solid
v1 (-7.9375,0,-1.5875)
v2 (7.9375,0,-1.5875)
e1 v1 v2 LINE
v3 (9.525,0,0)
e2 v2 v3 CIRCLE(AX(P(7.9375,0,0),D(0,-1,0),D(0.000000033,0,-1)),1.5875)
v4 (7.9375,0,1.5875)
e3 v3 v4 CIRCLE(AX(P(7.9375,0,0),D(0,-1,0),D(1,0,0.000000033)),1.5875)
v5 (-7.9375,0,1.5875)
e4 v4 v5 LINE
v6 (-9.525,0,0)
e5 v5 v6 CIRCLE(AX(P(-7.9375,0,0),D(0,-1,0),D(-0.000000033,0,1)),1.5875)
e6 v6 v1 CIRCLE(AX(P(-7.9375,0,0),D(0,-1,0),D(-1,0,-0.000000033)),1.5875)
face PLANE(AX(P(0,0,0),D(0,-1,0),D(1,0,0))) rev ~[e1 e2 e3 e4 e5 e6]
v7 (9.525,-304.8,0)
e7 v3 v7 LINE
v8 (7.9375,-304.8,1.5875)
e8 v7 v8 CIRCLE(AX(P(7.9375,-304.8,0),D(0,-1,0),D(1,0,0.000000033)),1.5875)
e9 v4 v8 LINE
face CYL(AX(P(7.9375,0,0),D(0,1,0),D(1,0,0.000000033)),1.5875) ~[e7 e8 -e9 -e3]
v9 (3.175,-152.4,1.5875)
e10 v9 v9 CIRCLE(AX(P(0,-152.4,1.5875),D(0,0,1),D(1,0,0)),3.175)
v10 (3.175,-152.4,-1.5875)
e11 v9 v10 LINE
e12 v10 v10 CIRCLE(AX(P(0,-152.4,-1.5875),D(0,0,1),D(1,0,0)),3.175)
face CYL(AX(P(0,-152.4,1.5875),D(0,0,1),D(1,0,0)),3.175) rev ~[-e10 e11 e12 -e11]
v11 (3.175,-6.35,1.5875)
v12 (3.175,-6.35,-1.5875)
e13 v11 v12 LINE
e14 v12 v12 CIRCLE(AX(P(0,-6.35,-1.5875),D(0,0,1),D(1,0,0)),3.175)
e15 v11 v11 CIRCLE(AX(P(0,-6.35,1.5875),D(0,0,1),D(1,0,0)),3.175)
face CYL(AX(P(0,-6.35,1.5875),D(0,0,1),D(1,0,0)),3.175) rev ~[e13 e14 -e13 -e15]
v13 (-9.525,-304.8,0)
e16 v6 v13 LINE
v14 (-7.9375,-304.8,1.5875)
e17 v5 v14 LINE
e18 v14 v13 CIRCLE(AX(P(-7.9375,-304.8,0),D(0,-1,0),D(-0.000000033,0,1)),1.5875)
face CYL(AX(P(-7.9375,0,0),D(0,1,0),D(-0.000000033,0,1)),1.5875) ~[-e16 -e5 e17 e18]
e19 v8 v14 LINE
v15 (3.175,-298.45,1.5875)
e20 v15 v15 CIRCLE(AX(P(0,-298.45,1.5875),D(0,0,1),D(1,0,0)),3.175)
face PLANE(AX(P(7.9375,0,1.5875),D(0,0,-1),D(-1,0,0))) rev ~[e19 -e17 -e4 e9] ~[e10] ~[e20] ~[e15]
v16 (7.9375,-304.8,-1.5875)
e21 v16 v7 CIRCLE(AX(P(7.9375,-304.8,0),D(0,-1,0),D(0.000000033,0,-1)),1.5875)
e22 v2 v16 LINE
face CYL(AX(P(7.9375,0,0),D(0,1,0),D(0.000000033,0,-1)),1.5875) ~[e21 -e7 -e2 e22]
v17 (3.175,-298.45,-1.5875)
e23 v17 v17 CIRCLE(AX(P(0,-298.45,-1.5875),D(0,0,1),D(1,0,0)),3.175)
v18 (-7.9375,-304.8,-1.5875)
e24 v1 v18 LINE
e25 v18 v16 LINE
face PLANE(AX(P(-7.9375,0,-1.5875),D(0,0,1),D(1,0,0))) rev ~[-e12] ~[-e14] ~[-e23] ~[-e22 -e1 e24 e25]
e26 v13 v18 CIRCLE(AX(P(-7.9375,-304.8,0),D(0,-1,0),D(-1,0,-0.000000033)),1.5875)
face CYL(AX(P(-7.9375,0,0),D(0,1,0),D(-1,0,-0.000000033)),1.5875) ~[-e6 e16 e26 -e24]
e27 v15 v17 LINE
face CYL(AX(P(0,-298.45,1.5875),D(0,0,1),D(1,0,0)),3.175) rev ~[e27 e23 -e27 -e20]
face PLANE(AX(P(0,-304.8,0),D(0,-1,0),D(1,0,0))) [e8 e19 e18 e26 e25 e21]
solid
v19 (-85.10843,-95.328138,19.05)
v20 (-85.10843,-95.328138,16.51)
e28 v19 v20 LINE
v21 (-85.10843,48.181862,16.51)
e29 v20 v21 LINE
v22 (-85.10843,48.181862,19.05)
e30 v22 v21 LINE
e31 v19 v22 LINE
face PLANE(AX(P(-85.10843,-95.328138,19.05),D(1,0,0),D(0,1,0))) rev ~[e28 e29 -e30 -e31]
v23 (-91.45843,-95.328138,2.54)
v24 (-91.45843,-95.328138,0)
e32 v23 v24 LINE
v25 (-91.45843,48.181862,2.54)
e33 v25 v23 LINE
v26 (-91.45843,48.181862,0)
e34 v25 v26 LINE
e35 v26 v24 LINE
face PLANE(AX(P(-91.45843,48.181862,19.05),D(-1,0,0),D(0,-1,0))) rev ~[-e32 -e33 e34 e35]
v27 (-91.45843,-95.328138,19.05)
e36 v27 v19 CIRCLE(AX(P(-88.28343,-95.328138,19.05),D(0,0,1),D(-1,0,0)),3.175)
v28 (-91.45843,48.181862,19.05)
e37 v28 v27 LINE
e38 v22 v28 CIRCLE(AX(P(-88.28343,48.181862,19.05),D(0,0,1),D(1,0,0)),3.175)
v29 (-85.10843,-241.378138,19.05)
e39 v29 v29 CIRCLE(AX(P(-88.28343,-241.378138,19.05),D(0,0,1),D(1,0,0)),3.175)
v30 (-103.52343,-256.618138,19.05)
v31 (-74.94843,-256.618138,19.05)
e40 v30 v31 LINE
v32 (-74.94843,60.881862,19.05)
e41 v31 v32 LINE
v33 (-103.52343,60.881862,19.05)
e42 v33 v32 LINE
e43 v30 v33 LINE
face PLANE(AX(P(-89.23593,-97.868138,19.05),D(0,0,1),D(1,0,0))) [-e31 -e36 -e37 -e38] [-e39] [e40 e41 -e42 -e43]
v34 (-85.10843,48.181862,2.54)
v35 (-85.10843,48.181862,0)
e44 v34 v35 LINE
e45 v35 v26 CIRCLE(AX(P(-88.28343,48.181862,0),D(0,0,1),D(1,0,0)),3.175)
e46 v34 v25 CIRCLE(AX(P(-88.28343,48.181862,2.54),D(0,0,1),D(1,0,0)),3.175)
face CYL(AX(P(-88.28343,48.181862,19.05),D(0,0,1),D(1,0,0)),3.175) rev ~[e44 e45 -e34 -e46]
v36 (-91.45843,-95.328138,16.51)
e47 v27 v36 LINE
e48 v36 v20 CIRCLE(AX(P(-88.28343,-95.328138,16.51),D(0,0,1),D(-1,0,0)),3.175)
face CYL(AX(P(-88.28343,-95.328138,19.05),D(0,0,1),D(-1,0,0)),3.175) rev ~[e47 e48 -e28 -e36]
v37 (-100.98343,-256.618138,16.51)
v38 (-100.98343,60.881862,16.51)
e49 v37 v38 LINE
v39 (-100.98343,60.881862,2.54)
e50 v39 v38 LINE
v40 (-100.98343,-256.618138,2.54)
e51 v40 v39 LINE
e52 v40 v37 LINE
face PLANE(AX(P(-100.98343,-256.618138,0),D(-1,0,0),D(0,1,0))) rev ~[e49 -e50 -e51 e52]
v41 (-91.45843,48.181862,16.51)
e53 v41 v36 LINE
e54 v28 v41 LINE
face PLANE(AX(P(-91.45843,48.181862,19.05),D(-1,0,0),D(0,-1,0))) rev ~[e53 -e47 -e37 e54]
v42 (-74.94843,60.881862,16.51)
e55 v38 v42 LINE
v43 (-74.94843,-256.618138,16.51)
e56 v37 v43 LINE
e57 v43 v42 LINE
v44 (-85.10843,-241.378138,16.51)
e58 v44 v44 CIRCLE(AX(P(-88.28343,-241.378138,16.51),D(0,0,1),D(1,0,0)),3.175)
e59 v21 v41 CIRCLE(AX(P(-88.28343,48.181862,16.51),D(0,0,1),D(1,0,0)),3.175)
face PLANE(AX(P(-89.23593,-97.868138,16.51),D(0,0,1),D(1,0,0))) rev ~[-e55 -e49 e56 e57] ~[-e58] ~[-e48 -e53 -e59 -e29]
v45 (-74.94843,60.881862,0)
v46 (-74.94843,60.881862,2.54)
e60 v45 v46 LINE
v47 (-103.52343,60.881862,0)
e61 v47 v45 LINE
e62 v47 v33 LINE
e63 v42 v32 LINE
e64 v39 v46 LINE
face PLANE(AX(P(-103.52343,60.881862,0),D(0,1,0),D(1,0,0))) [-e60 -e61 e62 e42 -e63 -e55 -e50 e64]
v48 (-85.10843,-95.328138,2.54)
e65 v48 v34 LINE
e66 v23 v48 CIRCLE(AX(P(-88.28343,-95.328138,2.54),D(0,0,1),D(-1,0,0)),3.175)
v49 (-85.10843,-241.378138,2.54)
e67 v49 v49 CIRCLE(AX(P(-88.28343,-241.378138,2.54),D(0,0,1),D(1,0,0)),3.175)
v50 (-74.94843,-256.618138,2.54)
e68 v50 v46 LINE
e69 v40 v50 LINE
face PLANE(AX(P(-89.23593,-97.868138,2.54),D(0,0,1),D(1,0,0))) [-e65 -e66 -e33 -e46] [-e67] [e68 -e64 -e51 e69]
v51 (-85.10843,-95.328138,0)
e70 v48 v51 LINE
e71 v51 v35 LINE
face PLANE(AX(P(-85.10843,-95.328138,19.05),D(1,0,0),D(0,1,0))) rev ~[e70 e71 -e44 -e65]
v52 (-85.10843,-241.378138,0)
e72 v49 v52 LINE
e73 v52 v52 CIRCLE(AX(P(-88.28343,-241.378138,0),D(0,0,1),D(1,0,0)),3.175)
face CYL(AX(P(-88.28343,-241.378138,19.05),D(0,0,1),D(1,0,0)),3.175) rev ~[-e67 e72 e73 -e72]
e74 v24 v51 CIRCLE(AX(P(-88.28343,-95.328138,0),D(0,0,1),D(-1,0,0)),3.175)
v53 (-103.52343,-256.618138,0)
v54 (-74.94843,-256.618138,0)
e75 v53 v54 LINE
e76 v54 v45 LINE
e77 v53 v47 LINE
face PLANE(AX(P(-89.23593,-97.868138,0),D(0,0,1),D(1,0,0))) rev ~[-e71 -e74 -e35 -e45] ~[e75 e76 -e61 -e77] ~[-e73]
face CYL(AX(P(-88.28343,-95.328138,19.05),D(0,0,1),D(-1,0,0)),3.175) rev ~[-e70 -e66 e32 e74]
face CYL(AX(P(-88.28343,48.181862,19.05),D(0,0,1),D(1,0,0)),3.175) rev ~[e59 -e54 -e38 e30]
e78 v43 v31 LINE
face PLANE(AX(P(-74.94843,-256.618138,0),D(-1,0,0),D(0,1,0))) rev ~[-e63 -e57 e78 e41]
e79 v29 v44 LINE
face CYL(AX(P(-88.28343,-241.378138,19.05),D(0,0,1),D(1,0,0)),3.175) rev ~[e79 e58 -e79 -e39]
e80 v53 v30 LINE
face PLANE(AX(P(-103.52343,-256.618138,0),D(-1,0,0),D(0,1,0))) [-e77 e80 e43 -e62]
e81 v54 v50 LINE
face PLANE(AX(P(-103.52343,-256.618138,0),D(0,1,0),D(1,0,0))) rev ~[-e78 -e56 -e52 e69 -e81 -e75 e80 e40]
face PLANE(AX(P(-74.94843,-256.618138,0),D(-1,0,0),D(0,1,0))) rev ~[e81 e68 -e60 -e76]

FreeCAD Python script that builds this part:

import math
import FreeCAD as App
import Part
import Sketcher

V = App.Vector
Q = App.Units.Quantity


def faces_at(feature, points):
    """Names of the faces that lie closest to the given points."""
    faces = feature.Shape.Faces
    near = lambda p: min(range(len(faces)), key=lambda i: faces[i].distToShape(Part.Vertex(*p))[0])
    return sorted({f"Face{near(p) + 1}" for p in points})

doc = App.newDocument("Part")
body = doc.addObject("PartDesign::Body", "Body")

sketch1 = doc.addObject("Sketcher::SketchObject", "Sketch")
body.addObject(sketch1)
sketch1.AttachmentSupport = (doc.XZ_Plane, [""])
sketch1.MapMode = "FlatFace"
sketch1.addGeometry(Part.LineSegment(V(7.9, 1.6, 0), V(-7.9, 1.6, 0)), False)
sketch1.addGeometry(Part.ArcOfCircle(Part.Circle(V(-7.9, 0, 0), V(0, 0, 1), 1.6), math.radians(90), math.radians(180)), False)
sketch1.addGeometry(Part.ArcOfCircle(Part.Circle(V(-7.9, 0, 0), V(0, 0, 1), 1.6), math.radians(-180), math.radians(-90)), False)
sketch1.addGeometry(Part.LineSegment(V(-7.9, -1.6, 0), V(7.9, -1.6, 0)), False)
sketch1.addGeometry(Part.ArcOfCircle(Part.Circle(V(7.9, 0, 0), V(0, 0, 1), 1.6), math.radians(-90), math.radians(0)), False)
sketch1.addGeometry(Part.ArcOfCircle(Part.Circle(V(7.9, 0, 0), V(0, 0, 1), 1.6), math.radians(0), math.radians(90)), False)
sketch1.addConstraint(Sketcher.Constraint("Tangent", 0, 2, 1, 1))
sketch1.addConstraint(Sketcher.Constraint("Tangent", 1, 2, 2, 1))
sketch1.addConstraint(Sketcher.Constraint("Tangent", 2, 2, 3, 1))
sketch1.addConstraint(Sketcher.Constraint("Tangent", 3, 2, 4, 1))
sketch1.addConstraint(Sketcher.Constraint("Tangent", 4, 2, 5, 1))
sketch1.addConstraint(Sketcher.Constraint("Tangent", 5, 2, 0, 1))
sketch1.addConstraint(Sketcher.Constraint("Horizontal", 0))
sketch1.addConstraint(Sketcher.Constraint("Horizontal", 3))
sketch1.addConstraint(Sketcher.Constraint("Equal", 1, 2))
sketch1.addConstraint(Sketcher.Constraint("Equal", 2, 4))
sketch1.addConstraint(Sketcher.Constraint("Symmetric", 1, 3, 4, 3, -1, 1))
sketch1.addConstraint(Sketcher.Constraint("PointOnObject", 1, 2, -1))
sketch1.addConstraint(Sketcher.Constraint("PointOnObject", 4, 2, -1))
sketch1.addConstraint(Sketcher.Constraint("Radius", 1, Q("0.0625 in")))
sketch1.addConstraint(Sketcher.Constraint("DistanceX", 0, 2, 0, 1, Q("0.625 in")))
pad1 = doc.addObject("PartDesign::Pad", "Pad")
body.addObject(pad1)
pad1.Profile = sketch1
pad1.Length = Q("12 in")

sketch2 = doc.addObject("Sketcher::SketchObject", "Sketch001")
body.addObject(sketch2)
sketch2.AttachmentSupport = (doc.XY_Plane, [""])
sketch2.MapMode = "FlatFace"
sketch2.AttachmentOffset = App.Placement(V(0, 0, 0.0625 * 25.4), App.Rotation())
sketch2.addGeometry(Part.Circle(V(0, -298.4, 0), V(0, 0, 1), 3.2), False)
sketch2.addGeometry(Part.Circle(V(0, -152.4, 0), V(0, 0, 1), 3.2), False)
sketch2.addGeometry(Part.Circle(V(0, -6.3, 0), V(0, 0, 1), 3.2), False)
sketch2.addConstraint(Sketcher.Constraint("Equal", 0, 1))
sketch2.addConstraint(Sketcher.Constraint("Equal", 1, 2))
sketch2.addConstraint(Sketcher.Constraint("PointOnObject", 0, 3, -2))
sketch2.addConstraint(Sketcher.Constraint("PointOnObject", 1, 3, -2))
sketch2.addConstraint(Sketcher.Constraint("PointOnObject", 2, 3, -2))
sketch2.addConstraint(Sketcher.Constraint("Diameter", 0, Q("0.25 in")))
sketch2.addConstraint(Sketcher.Constraint("DistanceY", 1, 3, -1, 1, Q("6 in")))
sketch2.addConstraint(Sketcher.Constraint("DistanceY", 0, 3, 2, 3, Q("11.5 in")))
sketch2.addConstraint(Sketcher.Constraint("DistanceY", 0, 3, -1, 1, Q("11.75 in")))
pocket1 = doc.addObject("PartDesign::Pocket", "Pocket")
body.addObject(pocket1)
pocket1.Profile = sketch2
pocket1.Length = Q("1 in")
body2 = doc.addObject("PartDesign::Body", "Body001")

sketch3 = doc.addObject("Sketcher::SketchObject", "Sketch002")
body2.addObject(sketch3)
sketch3.AttachmentSupport = (doc.getObject("XY_Plane001"), [""])
sketch3.MapMode = "FlatFace"
sketch3.addGeometry(Part.LineSegment(V(-104, 61, 0), V(-104, -257, 0)), False)
sketch3.addGeometry(Part.LineSegment(V(-104, -257, 0), V(-75, -257, 0)), False)
sketch3.addGeometry(Part.LineSegment(V(-75, -257, 0), V(-75, 61, 0)), False)
sketch3.addGeometry(Part.LineSegment(V(-75, 61, 0), V(-104, 61, 0)), False)
sketch3.addConstraint(Sketcher.Constraint("Coincident", 0, 2, 1, 1))
sketch3.addConstraint(Sketcher.Constraint("Coincident", 1, 2, 2, 1))
sketch3.addConstraint(Sketcher.Constraint("Coincident", 2, 2, 3, 1))
sketch3.addConstraint(Sketcher.Constraint("Coincident", 3, 2, 0, 1))
sketch3.addConstraint(Sketcher.Constraint("Vertical", 0))
sketch3.addConstraint(Sketcher.Constraint("Horizontal", 1))
sketch3.addConstraint(Sketcher.Constraint("Vertical", 2))
sketch3.addConstraint(Sketcher.Constraint("Horizontal", 3))
sketch3.addConstraint(Sketcher.Constraint("DistanceY", 0, 2, 0, 1, Q("12.5 in")))
sketch3.addConstraint(Sketcher.Constraint("DistanceX", 1, 1, 1, 2, Q("1.125 in")))
sketch3.addConstraint(Sketcher.Constraint("DistanceX", 0, 2, -1, 1, 103.52343))
sketch3.addConstraint(Sketcher.Constraint("DistanceY", 0, 2, -1, 1, 256.618138))
pad2 = doc.addObject("PartDesign::Pad", "Pad001")
body2.addObject(pad2)
pad2.Profile = sketch3
pad2.Length = Q("0.75 in")
doc.recompute()

thickness = doc.addObject("PartDesign::Thickness", "Thickness")
body2.addObject(thickness)
thickness.Base = (pad2, faces_at(pad2, [(-74.948, -97.868, 9.525), (-89.236, -256.618, 9.525), (-89.236, 60.882, 9.525)]))
thickness.Value = Q("0.1 in")
thickness.Reversed = True
thickness.Join = "Arc"

sketch4 = doc.addObject("Sketcher::SketchObject", "Sketch003")
body2.addObject(sketch4)
sketch4.AttachmentSupport = (doc.getObject("XY_Plane001"), [""])
sketch4.MapMode = "FlatFace"
sketch4.AttachmentOffset = App.Placement(V(0, 0, 0.75 * 25.4), App.Rotation())
sketch4.addGeometry(Part.Circle(V(-88.3, -241.4, 0), V(0, 0, 1), 3.2), False)
sketch4.addGeometry(Part.LineSegment(V(-91.5, 48.2, 0), V(-91.5, -95.3, 0)), False)
sketch4.addGeometry(Part.ArcOfCircle(Part.Circle(V(-88.3, -95.3, 0), V(0, 0, 1), 3.2), math.radians(180), math.radians(360)), False)
sketch4.addGeometry(Part.LineSegment(V(-85.1, -95.3, 0), V(-85.1, 48.2, 0)), False)
sketch4.addGeometry(Part.ArcOfCircle(Part.Circle(V(-88.3, 48.2, 0), V(0, 0, 1), 3.2), math.radians(0), math.radians(180)), False)
sketch4.addConstraint(Sketcher.Constraint("Tangent", 1, 2, 2, 1))
sketch4.addConstraint(Sketcher.Constraint("Tangent", 2, 2, 3, 1))
sketch4.addConstraint(Sketcher.Constraint("Tangent", 3, 2, 4, 1))
sketch4.addConstraint(Sketcher.Constraint("Tangent", 4, 2, 1, 1))
sketch4.addConstraint(Sketcher.Constraint("Vertical", 1))
sketch4.addConstraint(Sketcher.Constraint("Vertical", 3))
sketch4.addConstraint(Sketcher.Constraint("Equal", 0, 2))
sketch4.addConstraint(Sketcher.Constraint("Vertical", 0, 3, 2, 3))
sketch4.addConstraint(Sketcher.Constraint("Diameter", 0, Q("0.25 in")))
sketch4.addConstraint(Sketcher.Constraint("DistanceY", 1, 2, 1, 1, Q("5.65 in")))
sketch4.addConstraint(Sketcher.Constraint("DistanceY", 0, 3, 4, 3, Q("11.4 in")))
sketch4.addConstraint(Sketcher.Constraint("DistanceX", 0, 3, -1, 1, 88.28343))
sketch4.addConstraint(Sketcher.Constraint("DistanceY", 0, 3, -1, 1, 241.378138))
pocket2 = doc.addObject("PartDesign::Pocket", "Pocket001")
body2.addObject(pocket2)
pocket2.Profile = sketch4
pocket2.Length = Q("1 in")

doc.recompute()
